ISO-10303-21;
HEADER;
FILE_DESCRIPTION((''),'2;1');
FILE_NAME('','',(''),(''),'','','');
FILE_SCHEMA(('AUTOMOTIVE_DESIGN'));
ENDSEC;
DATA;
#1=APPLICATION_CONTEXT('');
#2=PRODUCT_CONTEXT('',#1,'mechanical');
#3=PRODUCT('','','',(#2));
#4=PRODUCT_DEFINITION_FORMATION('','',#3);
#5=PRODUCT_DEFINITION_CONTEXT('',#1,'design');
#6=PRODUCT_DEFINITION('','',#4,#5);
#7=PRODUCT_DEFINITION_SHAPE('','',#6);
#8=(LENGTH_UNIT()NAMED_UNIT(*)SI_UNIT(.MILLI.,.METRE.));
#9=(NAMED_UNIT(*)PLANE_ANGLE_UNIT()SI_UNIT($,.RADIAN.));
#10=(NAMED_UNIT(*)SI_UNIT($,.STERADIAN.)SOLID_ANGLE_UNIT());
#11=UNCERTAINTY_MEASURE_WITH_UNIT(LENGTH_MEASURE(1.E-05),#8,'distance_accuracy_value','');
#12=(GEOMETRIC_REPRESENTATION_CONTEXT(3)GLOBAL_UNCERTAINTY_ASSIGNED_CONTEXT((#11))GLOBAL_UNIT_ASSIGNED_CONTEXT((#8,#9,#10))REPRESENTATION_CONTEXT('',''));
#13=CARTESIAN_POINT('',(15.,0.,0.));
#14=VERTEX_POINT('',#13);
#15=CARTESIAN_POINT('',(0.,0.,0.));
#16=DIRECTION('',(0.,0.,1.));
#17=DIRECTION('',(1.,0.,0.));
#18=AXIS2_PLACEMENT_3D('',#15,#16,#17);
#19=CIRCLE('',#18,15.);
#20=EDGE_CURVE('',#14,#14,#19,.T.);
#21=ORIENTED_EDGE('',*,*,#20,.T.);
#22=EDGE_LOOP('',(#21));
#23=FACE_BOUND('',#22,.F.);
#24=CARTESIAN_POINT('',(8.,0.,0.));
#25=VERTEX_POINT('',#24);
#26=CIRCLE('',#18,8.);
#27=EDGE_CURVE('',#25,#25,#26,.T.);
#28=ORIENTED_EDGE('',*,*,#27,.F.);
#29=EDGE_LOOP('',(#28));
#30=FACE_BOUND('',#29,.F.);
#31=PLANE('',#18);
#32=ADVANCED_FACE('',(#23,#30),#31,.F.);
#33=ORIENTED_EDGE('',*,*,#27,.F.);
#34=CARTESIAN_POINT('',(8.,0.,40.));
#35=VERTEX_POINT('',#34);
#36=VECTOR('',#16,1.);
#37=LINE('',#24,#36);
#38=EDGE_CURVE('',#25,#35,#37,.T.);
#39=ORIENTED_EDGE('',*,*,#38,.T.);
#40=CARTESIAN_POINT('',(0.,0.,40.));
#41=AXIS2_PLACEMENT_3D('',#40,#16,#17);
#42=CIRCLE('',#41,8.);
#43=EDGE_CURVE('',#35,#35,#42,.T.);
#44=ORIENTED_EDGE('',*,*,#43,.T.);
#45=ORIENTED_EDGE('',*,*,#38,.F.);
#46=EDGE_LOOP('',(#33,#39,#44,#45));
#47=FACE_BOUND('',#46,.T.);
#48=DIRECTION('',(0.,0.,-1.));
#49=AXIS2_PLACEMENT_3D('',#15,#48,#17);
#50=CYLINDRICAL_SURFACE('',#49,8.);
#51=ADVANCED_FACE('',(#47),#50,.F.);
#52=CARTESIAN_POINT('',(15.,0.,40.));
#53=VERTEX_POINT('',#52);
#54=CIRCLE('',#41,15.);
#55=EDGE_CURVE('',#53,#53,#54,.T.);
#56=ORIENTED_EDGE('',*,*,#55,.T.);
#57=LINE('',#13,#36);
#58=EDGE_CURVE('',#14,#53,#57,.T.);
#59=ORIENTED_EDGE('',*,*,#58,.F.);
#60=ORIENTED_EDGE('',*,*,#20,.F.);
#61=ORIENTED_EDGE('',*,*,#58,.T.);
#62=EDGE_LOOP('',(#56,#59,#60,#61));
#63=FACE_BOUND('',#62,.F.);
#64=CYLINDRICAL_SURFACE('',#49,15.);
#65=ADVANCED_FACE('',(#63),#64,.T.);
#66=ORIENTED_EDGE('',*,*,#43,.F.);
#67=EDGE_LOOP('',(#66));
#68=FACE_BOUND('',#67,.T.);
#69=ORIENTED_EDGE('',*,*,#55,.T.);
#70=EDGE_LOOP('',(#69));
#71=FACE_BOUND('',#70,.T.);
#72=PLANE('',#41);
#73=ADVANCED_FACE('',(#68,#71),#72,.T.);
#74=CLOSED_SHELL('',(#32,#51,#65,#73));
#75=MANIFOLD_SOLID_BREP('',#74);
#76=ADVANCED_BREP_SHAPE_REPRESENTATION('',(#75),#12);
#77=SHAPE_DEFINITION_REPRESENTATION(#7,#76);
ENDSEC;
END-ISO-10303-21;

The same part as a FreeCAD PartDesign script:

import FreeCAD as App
import Part
import Sketcher
from FreeCAD import Vector

doc = App.newDocument("Part")
body = doc.addObject("PartDesign::Body", "Body")

# Sketch on XY plane
sketch1 = doc.addObject("Sketcher::SketchObject", "Sketch")
body.addObject(sketch1)
sketch1.AttachmentSupport = (doc.XY_Plane, [""])
sketch1.MapMode = "FlatFace"
sketch1.addGeometry(Part.Circle(Vector(0, 0, 0), Vector(0, 0, 1), 15), False)
sketch1.addGeometry(Part.Circle(Vector(0, 0, 0), Vector(0, 0, 1), 8), False)
sketch1.addConstraint(Sketcher.Constraint("Coincident", 0, 3, -1, 1))
sketch1.addConstraint(Sketcher.Constraint("Coincident", 1, 3, -1, 1))
sketch1.addConstraint(Sketcher.Constraint("Diameter", 0, 30.0))
sketch1.addConstraint(Sketcher.Constraint("Diameter", 1, 16.0))
pad1 = doc.addObject("PartDesign::Pad", "Pad")
body.addObject(pad1)
pad1.Profile = sketch1
pad1.Length = 40

doc.recompute()
